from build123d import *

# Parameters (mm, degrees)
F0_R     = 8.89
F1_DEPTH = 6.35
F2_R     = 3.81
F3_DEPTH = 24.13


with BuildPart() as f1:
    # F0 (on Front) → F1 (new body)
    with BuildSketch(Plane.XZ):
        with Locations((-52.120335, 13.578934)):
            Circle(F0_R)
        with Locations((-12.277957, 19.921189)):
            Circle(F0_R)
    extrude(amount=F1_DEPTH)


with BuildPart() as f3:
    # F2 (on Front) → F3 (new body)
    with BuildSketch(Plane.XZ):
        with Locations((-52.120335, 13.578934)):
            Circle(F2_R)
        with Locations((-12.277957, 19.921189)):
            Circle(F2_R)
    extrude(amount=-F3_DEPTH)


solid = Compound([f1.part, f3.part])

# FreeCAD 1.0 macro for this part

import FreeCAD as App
import Part
import Sketcher

V = App.Vector
Q = App.Units.Quantity

doc = App.newDocument("Part")
params = doc.addObject("Spreadsheet::Sheet", "Params")
for row, (alias, value) in enumerate([
    ("sketch1_diameter", "0.7 in"),
    ("pad1_length", "0.25 in"),
    ("sketch2_diameter", "0.3 in"),
    ("pad2_length", "0.95 in"),
], start=1):
    params.set(f"A{row}", alias)
    params.set(f"B{row}", "=" + value)
    params.setAlias(f"B{row}", alias)

body = doc.addObject("PartDesign::Body", "Body")
body.AllowCompound = True

sketch1 = body.newObject("Sketcher::SketchObject", "Sketch")
sketch1.AttachmentSupport = (doc.getObject("XZ_Plane"), [""])
sketch1.MapMode = "FlatFace"
sketch1.addGeometry([
    Part.Circle(V(-52, 14, 0), V(0, 0, 1), 9),
    Part.Circle(V(-12, 20, 0), V(0, 0, 1), 9),
], False)
sketch1.addConstraint([
    Sketcher.Constraint("Equal", 0, 1),
    Sketcher.Constraint("Diameter", 0, Q("0.7 in")),
    Sketcher.Constraint("DistanceY", -1, 1, 1, 3, Q("19.921189 mm")),
    Sketcher.Constraint("DistanceX", 0, 3, -1, 1, Q("52.120335 mm")),
    Sketcher.Constraint("DistanceY", -1, 1, 0, 3, Q("13.578934 mm")),
    Sketcher.Constraint("DistanceX", 1, 3, -1, 1, Q("12.277957 mm")),
])
sketch1.setExpression("Constraints[1]", "Params.sketch1_diameter")
pad1 = body.newObject("PartDesign::Pad", "Pad")
pad1.Profile = sketch1
pad1.setExpression("Length", "Params.pad1_length")
body2 = doc.addObject("PartDesign::Body", "Body001")
body2.AllowCompound = True

sketch2 = body2.newObject("Sketcher::SketchObject", "Sketch001")
sketch2.AttachmentSupport = (doc.getObject("XZ_Plane001"), [""])
sketch2.MapMode = "FlatFace"
sketch2.addGeometry([
    Part.Circle(V(-52.1, 13.6, 0), V(0, 0, 1), 3.8),
    Part.Circle(V(-12.3, 19.9, 0), V(0, 0, 1), 3.8),
], False)
sketch2.addConstraint([
    Sketcher.Constraint("Equal", 0, 1),
    Sketcher.Constraint("Diameter", 0, Q("0.3 in")),
    Sketcher.Constraint("DistanceY", -1, 1, 1, 3, Q("19.921189 mm")),
    Sketcher.Constraint("DistanceX", 0, 3, -1, 1, Q("52.120335 mm")),
    Sketcher.Constraint("DistanceY", -1, 1, 0, 3, Q("13.578934 mm")),
    Sketcher.Constraint("DistanceX", 1, 3, -1, 1, Q("12.277957 mm")),
])
sketch2.setExpression("Constraints[1]", "Params.sketch2_diameter")
pad2 = body2.newObject("PartDesign::Pad", "Pad001")
pad2.Profile = sketch2
pad2.setExpression("Length", "Params.pad2_length")
pad2.Reversed = True

doc.recompute()
